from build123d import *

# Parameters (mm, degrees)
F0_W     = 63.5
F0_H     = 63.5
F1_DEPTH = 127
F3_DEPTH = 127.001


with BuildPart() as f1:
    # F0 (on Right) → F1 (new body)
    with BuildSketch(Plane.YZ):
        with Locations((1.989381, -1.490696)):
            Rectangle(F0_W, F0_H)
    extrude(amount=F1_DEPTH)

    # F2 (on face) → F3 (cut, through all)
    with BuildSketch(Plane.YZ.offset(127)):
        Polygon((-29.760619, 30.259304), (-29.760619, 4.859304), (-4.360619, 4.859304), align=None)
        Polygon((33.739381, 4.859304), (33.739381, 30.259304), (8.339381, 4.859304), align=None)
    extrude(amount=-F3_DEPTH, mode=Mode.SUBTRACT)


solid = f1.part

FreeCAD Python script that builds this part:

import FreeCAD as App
import Part
import Sketcher
from FreeCAD import Vector
Q = App.Units.Quantity


def add_polygon(sketch, points):
    """Adds a closed chain of lines whose ends are joined by coincident constraints."""
    first, n = sketch.GeometryCount, len(points)
    for a, b in zip(points, points[1:] + points[:1]):
        sketch.addGeometry(Part.LineSegment(App.Vector(*a, 0), App.Vector(*b, 0)), False)
    for i in range(n):
        sketch.addConstraint(Sketcher.Constraint("Coincident", first + i, 2, first + (i + 1) % n, 1))

doc = App.newDocument("Part")
params = doc.addObject("Spreadsheet::Sheet", "Params")
for row, (alias, value) in enumerate([
    ("sketch1_width", "2.5 in"),
    ("pad1_length", "5 in"),
    ("sketch2_width", "1 in"),
], start=1):
    params.set(f"A{row}", alias)
    params.set(f"B{row}", "=" + value)
    params.setAlias(f"B{row}", alias)

body = doc.addObject("PartDesign::Body", "Body")

# Sketch on YZ plane
sketch1 = body.newObject("Sketcher::SketchObject", "Sketch")
sketch1.AttachmentSupport = (doc.getObject("YZ_Plane"), [""])
sketch1.MapMode = "FlatFace"
add_polygon(sketch1, [(-30, 30), (-30, -33), (34, -33), (34, 30)])  # lines 0-3
sketch1.addConstraint(Sketcher.Constraint("Vertical", 0))
sketch1.addConstraint(Sketcher.Constraint("Horizontal", 1))
sketch1.addConstraint(Sketcher.Constraint("Vertical", 2))
sketch1.addConstraint(Sketcher.Constraint("Horizontal", 3))
sketch1.addConstraint(Sketcher.Constraint("Equal", 3, 0))
sketch1.addConstraint(Sketcher.Constraint("DistanceX", 1, 1, 1, 2, Q("2.5 in")))
sketch1.addConstraint(Sketcher.Constraint("DistanceX", 0, 2, -1, 1, 29.760619))
sketch1.addConstraint(Sketcher.Constraint("DistanceY", 0, 2, -1, 1, 33.240696))
sketch1.setExpression("Constraints[9]", "Params.sketch1_width")
pad1 = body.newObject("PartDesign::Pad", "Pad")
pad1.Profile = sketch1
pad1.setExpression("Length", "Params.pad1_length")

# Sketch on YZ plane
sketch2 = body.newObject("Sketcher::SketchObject", "Sketch001")
sketch2.AttachmentSupport = (doc.getObject("YZ_Plane"), [""])
sketch2.MapMode = "FlatFace"
sketch2.AttachmentOffset = App.Placement(Vector(0, 0, 5 * 25.4), App.Rotation())
add_polygon(sketch2, [(-30, 30), (-30, 5), (-4, 5)])  # lines 0-2
add_polygon(sketch2, [(34, 5), (34, 30), (8, 5)])  # lines 3-5
sketch2.addConstraint(Sketcher.Constraint("Vertical", 0))
sketch2.addConstraint(Sketcher.Constraint("Horizontal", 1))
sketch2.addConstraint(Sketcher.Constraint("Vertical", 3))
sketch2.addConstraint(Sketcher.Constraint("Horizontal", 5))
sketch2.addConstraint(Sketcher.Constraint("Perpendicular", 2, 4))
sketch2.addConstraint(Sketcher.Constraint("Horizontal", 2, 2, 3, 2))
sketch2.addConstraint(Sketcher.Constraint("Horizontal", 1, 2, 4, 2))
sketch2.addConstraint(Sketcher.Constraint("Equal", 1, 5))
sketch2.addConstraint(Sketcher.Constraint("DistanceX", 1, 1, 1, 2, Q("1 in")))
sketch2.addConstraint(Sketcher.Constraint("DistanceX", 1, 2, 3, 2, Q("1.5 in")))
sketch2.addConstraint(Sketcher.Constraint("DistanceX", 0, 2, -1, 1, 29.760619))
sketch2.addConstraint(Sketcher.Constraint("DistanceY", -1, 1, 0, 2, 4.859304))
sketch2.setExpression("Constraints[14]", "Params.sketch2_width")
pocket1 = body.newObject("PartDesign::Pocket", "Pocket")
pocket1.Profile = sketch2
pocket1.Type = "ThroughAll"

doc.recompute()
